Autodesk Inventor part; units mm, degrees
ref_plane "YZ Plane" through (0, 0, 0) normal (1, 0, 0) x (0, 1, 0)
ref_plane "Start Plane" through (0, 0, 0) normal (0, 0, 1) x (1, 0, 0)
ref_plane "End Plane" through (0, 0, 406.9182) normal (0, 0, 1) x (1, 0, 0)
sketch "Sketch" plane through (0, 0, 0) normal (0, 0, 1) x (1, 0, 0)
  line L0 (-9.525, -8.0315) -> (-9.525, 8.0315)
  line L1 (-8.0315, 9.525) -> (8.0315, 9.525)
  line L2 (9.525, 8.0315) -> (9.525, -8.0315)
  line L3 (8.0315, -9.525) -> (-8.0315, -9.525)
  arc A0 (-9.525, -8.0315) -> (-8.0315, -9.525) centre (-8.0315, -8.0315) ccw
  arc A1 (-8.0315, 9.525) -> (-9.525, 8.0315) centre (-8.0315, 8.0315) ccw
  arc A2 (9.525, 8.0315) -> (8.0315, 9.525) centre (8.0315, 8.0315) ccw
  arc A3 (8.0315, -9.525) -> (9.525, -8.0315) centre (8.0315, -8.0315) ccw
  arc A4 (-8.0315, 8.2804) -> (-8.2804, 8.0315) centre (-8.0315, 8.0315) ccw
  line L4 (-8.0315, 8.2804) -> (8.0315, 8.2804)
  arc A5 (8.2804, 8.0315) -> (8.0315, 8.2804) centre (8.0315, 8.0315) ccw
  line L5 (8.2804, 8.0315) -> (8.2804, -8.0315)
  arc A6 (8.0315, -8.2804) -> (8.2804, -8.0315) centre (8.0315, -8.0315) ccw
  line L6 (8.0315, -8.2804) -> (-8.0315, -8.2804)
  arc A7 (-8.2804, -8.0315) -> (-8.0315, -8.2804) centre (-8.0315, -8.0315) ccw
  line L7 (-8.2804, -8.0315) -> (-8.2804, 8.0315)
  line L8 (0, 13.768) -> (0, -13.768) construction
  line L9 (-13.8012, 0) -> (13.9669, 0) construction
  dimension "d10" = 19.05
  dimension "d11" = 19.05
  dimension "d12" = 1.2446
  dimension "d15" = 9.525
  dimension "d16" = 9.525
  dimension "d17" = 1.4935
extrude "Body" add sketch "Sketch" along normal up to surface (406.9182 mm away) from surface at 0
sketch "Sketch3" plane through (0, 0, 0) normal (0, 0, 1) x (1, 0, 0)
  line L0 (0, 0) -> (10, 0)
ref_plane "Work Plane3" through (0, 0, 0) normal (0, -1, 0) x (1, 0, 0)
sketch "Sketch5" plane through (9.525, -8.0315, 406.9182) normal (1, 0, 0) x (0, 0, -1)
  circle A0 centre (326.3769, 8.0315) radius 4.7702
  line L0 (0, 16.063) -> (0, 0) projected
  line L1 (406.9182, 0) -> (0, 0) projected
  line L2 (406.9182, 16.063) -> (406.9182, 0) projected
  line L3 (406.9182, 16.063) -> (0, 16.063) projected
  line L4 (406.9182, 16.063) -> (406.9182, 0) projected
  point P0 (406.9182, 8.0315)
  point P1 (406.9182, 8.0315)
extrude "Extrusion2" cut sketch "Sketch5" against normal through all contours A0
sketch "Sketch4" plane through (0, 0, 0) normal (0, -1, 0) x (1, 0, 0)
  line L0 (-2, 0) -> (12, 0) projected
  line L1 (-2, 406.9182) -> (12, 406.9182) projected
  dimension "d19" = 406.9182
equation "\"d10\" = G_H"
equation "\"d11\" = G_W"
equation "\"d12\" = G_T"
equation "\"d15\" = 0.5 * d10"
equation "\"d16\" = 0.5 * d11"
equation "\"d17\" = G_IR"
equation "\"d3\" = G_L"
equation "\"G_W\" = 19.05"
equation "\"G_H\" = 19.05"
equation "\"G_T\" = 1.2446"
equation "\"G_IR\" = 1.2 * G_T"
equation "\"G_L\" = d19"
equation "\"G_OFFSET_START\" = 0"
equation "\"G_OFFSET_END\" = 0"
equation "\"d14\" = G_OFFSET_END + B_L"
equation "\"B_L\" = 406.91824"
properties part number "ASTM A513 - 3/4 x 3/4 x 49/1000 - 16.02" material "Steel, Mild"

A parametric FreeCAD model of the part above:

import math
import FreeCAD as App
import Part
import Sketcher

V = App.Vector
Q = App.Units.Quantity

doc = App.newDocument("Part")
params = doc.addObject("Spreadsheet::Sheet", "Params")
for row, (alias, value) in enumerate([
    ("pad1_length", "406.9182 mm"),
], start=1):
    params.set(f"A{row}", alias)
    params.set(f"B{row}", "=" + value)
    params.setAlias(f"B{row}", alias)

body = doc.addObject("PartDesign::Body", "Body")

# Sketch on XY plane
sketch1 = body.newObject("Sketcher::SketchObject", "Sketch")
sketch1.AttachmentSupport = (doc.getObject("XY_Plane"), [""])
sketch1.MapMode = "FlatFace"
sketch1.addGeometry([
    Part.LineSegment(V(-9.53, 8.03, 0), V(-9.53, -8.03, 0)),  # 0
    Part.ArcOfCircle(Part.Circle(V(-8.03, -8.03, 0), V(0, 0, 1), 1.49), math.radians(180), math.radians(270)),  # 1
    Part.LineSegment(V(-8.03, -9.53, 0), V(8.03, -9.53, 0)),  # 2
    Part.ArcOfCircle(Part.Circle(V(8.03, -8.03, 0), V(0, 0, 1), 1.49), math.radians(-90), math.radians(0)),  # 3
    Part.LineSegment(V(9.53, -8.03, 0), V(9.53, 8.03, 0)),  # 4
    Part.ArcOfCircle(Part.Circle(V(8.03, 8.03, 0), V(0, 0, 1), 1.49), math.radians(0), math.radians(90)),  # 5
    Part.LineSegment(V(8.03, 9.53, 0), V(-8.03, 9.53, 0)),  # 6
    Part.ArcOfCircle(Part.Circle(V(-8.03, 8.03, 0), V(0, 0, 1), 1.49), math.radians(90), math.radians(180)),  # 7
    Part.ArcOfCircle(Part.Circle(V(-8.03, 8.03, 0), V(0, 0, 1), 0.25), math.radians(90), math.radians(180)),  # 8
    Part.LineSegment(V(-8.03, 8.28, 0), V(8.03, 8.28, 0)),  # 9
    Part.ArcOfCircle(Part.Circle(V(8.03, 8.03, 0), V(0, 0, 1), 0.25), math.radians(0), math.radians(90)),  # 10
    Part.LineSegment(V(8.28, 8.03, 0), V(8.28, -8.03, 0)),  # 11
    Part.ArcOfCircle(Part.Circle(V(8.03, -8.03, 0), V(0, 0, 1), 0.25), math.radians(-90), math.radians(0)),  # 12
    Part.LineSegment(V(8.03, -8.28, 0), V(-8.03, -8.28, 0)),  # 13
    Part.ArcOfCircle(Part.Circle(V(-8.03, -8.03, 0), V(0, 0, 1), 0.25), math.radians(180), math.radians(270)),  # 14
    Part.LineSegment(V(-8.28, -8.03, 0), V(-8.28, 8.03, 0)),  # 15
], False)
sketch1.addConstraint([
    Sketcher.Constraint("Tangent", 0, 2, 1, 1),
    Sketcher.Constraint("Tangent", 1, 2, 2, 1),
    Sketcher.Constraint("Tangent", 2, 2, 3, 1),
    Sketcher.Constraint("Tangent", 3, 2, 4, 1),
    Sketcher.Constraint("Tangent", 4, 2, 5, 1),
    Sketcher.Constraint("Tangent", 5, 2, 6, 1),
    Sketcher.Constraint("Tangent", 6, 2, 7, 1),
    Sketcher.Constraint("Tangent", 7, 2, 0, 1),
    Sketcher.Constraint("Tangent", 8, 1, 9, 1),
    Sketcher.Constraint("Tangent", 9, 2, 10, 2),
    Sketcher.Constraint("Tangent", 10, 1, 11, 1),
    Sketcher.Constraint("Tangent", 11, 2, 12, 2),
    Sketcher.Constraint("Tangent", 12, 1, 13, 1),
    Sketcher.Constraint("Tangent", 13, 2, 14, 2),
    Sketcher.Constraint("Tangent", 14, 1, 15, 1),
    Sketcher.Constraint("Tangent", 15, 2, 8, 2),
    Sketcher.Constraint("Vertical", 0),
    Sketcher.Constraint("Horizontal", 2),
    Sketcher.Constraint("Vertical", 4),
    Sketcher.Constraint("Horizontal", 6),
    Sketcher.Constraint("Horizontal", 9),
    Sketcher.Constraint("Vertical", 11),
    Sketcher.Constraint("Horizontal", 13),
    Sketcher.Constraint("Vertical", 15),
    Sketcher.Constraint("Coincident", 8, 3, 7, 3),
    Sketcher.Constraint("Coincident", 10, 3, 5, 3),
    Sketcher.Constraint("Coincident", 12, 3, 3, 3),
    Sketcher.Constraint("Equal", 1, 3),
    Sketcher.Constraint("Equal", 3, 5),
    Sketcher.Constraint("Equal", 5, 7),
    Sketcher.Constraint("Equal", 12, 14),
    Sketcher.Constraint("Symmetric", 1, 3, 5, 3, -1, 1),
    Sketcher.Constraint("Equal", 13, 0),
    Sketcher.Constraint("Radius", 1, Q("1.4935 mm")),
    Sketcher.Constraint("DistanceX", 0, 2, -1, 1, Q("9.525 mm")),
    Sketcher.Constraint("Radius", 8, Q("0.249 mm")),
])
pad1 = body.newObject("PartDesign::Pad", "Pad")
pad1.Profile = sketch1
pad1.setExpression("Length", "Params.pad1_length")

# Sketch on YZ plane
sketch2 = body.newObject("Sketcher::SketchObject", "Sketch001")
sketch2.AttachmentSupport = (doc.getObject("YZ_Plane"), [""])
sketch2.MapMode = "FlatFace"
sketch2.AttachmentOffset = App.Placement(V(0, 0, 9.525), App.Rotation())
sketch2.addGeometry(Part.Circle(V(0, 80.5, 0), V(0, 0, 1), 4.8), False)
sketch2.addConstraint([
    Sketcher.Constraint("PointOnObject", 0, 3, -2),
    Sketcher.Constraint("Diameter", 0, Q("9.5404 mm")),
    Sketcher.Constraint("DistanceY", -1, 1, 0, 3, Q("80.5413 mm")),
])
pocket1 = body.newObject("PartDesign::Pocket", "Pocket")
pocket1.Profile = sketch2
pocket1.Type = "ThroughAll"

doc.recompute()
